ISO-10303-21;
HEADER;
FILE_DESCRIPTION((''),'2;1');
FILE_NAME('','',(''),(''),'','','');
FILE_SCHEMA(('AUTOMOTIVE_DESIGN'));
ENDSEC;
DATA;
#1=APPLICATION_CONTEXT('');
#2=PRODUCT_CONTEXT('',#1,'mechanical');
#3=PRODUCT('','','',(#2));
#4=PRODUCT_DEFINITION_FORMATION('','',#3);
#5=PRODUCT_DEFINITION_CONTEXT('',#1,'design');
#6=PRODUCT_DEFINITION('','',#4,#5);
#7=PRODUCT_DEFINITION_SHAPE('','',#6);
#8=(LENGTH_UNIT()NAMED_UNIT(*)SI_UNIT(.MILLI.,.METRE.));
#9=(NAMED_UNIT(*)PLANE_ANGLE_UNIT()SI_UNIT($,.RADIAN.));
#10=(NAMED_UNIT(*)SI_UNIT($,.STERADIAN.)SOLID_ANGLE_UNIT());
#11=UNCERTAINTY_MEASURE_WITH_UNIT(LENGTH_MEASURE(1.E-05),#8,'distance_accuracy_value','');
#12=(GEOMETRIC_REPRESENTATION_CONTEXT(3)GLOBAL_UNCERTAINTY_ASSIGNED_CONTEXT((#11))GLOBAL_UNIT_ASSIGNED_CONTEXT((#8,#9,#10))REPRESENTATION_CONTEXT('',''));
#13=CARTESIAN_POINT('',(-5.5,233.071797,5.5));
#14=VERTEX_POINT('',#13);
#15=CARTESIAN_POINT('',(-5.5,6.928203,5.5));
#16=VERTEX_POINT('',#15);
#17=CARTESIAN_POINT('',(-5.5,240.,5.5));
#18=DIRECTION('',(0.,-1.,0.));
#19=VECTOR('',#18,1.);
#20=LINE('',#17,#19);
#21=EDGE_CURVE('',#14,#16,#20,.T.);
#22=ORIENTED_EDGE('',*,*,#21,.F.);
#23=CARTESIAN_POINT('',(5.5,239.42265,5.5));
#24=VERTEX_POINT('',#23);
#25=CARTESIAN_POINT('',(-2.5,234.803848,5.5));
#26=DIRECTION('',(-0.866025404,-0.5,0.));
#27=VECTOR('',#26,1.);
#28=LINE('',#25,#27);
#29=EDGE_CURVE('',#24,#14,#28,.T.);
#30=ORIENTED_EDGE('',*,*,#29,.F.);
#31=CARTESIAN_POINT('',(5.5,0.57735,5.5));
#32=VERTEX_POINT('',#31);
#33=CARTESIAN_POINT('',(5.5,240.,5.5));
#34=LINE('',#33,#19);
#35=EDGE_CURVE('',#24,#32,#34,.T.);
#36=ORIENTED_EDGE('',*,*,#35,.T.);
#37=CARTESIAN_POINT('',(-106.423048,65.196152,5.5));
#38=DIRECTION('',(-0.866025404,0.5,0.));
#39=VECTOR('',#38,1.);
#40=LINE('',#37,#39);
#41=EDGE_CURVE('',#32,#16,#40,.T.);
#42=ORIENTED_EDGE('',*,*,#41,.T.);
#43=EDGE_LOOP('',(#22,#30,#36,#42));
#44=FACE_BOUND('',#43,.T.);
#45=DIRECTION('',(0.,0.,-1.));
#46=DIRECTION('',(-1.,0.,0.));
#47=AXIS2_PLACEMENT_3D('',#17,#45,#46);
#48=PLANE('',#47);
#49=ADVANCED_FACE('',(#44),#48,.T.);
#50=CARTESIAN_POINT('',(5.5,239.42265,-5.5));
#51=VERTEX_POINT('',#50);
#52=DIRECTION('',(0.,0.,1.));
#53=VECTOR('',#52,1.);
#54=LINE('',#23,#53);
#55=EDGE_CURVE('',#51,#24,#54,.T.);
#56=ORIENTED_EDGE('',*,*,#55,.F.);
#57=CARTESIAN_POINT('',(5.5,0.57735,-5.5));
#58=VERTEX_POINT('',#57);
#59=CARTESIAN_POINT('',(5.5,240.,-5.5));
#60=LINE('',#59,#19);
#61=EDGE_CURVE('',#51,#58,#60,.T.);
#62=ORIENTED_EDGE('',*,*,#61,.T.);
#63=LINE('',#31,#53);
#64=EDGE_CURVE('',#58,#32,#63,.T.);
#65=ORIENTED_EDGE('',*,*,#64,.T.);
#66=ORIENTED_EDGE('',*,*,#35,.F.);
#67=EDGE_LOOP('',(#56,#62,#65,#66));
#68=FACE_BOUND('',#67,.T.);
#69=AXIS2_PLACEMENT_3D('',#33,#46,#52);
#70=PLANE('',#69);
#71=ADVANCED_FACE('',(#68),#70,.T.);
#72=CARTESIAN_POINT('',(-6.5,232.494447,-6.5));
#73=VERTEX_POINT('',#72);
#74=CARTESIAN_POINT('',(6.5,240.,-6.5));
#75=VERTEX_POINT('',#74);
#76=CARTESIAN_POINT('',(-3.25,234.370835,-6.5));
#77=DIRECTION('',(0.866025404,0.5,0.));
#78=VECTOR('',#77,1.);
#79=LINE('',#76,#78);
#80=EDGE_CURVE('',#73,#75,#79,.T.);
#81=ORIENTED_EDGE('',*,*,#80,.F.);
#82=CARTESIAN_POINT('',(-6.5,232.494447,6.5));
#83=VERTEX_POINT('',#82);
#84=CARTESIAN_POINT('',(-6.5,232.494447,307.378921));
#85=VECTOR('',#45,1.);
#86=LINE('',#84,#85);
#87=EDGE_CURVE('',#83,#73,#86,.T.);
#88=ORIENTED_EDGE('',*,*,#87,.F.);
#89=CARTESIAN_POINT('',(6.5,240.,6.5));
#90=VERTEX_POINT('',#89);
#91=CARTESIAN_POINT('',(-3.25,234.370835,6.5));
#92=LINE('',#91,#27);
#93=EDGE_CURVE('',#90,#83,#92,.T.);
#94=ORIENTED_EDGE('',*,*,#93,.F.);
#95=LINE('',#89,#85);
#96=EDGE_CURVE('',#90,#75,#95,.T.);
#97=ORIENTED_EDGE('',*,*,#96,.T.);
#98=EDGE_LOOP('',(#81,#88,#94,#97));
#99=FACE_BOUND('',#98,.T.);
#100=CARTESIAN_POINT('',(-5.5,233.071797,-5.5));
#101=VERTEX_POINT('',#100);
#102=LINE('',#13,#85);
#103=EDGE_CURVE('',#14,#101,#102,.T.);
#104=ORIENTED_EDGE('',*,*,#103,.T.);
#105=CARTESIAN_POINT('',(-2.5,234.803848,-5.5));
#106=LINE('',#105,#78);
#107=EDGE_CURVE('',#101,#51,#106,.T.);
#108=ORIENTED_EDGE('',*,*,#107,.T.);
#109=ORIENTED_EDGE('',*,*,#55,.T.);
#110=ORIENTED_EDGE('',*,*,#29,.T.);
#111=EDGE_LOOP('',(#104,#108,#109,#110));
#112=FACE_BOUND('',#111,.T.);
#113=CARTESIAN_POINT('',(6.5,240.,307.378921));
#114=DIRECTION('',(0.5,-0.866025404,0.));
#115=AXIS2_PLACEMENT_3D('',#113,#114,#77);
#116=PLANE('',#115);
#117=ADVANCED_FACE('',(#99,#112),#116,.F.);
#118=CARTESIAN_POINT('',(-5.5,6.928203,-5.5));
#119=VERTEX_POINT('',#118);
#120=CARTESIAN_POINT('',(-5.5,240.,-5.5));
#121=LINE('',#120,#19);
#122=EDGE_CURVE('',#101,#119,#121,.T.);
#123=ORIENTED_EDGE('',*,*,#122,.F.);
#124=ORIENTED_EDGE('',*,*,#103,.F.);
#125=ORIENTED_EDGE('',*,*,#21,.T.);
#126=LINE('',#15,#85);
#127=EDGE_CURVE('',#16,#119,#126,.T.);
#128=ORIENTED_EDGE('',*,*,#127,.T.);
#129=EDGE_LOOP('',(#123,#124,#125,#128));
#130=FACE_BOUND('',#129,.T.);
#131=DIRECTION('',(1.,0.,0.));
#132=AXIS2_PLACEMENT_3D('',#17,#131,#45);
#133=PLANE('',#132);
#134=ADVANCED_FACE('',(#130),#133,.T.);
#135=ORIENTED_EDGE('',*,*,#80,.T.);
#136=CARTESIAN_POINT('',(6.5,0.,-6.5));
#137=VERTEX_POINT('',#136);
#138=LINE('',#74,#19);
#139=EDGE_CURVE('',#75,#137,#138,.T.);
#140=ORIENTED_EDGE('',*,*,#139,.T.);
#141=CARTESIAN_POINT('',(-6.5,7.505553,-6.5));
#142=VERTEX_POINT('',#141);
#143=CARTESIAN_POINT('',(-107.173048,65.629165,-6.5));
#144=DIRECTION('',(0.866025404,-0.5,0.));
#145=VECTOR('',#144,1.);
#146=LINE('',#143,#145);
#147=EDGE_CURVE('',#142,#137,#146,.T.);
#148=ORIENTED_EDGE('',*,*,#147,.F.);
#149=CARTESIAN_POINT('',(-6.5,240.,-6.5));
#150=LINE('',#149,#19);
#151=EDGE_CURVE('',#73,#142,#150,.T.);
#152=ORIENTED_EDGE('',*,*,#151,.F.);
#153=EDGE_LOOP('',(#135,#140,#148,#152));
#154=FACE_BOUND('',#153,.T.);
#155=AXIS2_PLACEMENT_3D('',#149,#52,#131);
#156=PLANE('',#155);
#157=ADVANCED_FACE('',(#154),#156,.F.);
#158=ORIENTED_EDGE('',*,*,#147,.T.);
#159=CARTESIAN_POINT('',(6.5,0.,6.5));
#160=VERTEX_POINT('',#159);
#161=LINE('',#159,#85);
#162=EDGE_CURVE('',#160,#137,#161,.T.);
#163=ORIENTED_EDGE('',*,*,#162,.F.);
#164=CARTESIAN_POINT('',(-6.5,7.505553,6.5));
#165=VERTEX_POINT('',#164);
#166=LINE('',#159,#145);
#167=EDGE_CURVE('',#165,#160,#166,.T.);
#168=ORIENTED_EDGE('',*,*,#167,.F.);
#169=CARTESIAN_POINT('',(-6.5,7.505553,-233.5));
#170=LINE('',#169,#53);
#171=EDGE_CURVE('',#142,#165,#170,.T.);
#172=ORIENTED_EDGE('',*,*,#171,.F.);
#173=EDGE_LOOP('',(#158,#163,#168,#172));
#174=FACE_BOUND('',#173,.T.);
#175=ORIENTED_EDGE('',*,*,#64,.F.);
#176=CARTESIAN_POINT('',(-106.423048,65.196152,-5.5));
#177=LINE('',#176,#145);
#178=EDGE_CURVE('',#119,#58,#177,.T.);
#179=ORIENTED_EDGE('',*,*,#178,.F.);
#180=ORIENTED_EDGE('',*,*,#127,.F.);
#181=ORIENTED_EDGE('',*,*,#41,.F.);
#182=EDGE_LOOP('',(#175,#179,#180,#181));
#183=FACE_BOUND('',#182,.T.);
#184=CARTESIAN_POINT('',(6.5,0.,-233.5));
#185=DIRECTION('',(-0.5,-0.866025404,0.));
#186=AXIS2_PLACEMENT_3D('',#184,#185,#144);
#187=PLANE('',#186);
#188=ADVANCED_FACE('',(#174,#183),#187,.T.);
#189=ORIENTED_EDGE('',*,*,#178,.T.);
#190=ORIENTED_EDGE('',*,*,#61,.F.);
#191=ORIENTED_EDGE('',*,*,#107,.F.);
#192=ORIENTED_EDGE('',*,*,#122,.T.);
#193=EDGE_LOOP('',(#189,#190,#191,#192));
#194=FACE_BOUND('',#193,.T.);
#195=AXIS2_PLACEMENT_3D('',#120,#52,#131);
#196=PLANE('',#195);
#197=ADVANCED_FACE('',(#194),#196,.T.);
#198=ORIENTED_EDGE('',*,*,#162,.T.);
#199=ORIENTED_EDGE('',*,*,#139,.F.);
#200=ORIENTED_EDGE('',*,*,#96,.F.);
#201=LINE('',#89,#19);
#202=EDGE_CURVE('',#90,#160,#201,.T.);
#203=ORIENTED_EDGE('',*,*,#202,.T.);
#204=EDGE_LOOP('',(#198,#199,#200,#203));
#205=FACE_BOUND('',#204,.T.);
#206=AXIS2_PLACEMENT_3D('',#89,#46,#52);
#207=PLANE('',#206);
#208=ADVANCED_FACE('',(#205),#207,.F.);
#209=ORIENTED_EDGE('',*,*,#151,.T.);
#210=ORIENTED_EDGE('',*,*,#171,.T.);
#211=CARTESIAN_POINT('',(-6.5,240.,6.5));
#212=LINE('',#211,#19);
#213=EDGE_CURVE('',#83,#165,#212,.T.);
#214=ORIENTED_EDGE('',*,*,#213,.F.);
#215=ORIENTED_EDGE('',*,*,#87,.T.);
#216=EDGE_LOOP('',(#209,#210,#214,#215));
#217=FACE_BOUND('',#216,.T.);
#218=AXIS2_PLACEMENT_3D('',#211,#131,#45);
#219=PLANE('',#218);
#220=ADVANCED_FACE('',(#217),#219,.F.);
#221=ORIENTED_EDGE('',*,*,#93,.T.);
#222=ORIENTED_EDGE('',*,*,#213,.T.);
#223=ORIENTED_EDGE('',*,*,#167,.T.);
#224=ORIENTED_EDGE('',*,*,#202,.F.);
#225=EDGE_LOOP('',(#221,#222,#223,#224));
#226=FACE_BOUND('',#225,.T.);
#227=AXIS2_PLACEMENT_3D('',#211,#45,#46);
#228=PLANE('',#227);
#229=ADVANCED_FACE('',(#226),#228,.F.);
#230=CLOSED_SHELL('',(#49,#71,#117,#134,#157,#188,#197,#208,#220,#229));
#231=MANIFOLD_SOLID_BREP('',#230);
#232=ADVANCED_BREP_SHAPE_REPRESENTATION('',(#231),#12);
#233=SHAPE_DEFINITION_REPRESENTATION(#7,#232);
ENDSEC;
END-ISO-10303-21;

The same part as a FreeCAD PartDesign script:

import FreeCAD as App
import Part
import Sketcher
Q = App.Units.Quantity

doc = App.newDocument("Part")
body = doc.addObject("PartDesign::Body", "Body")

# Sketch on XZ plane
sketch1 = doc.addObject("Sketcher::SketchObject", "Sketch")
body.addObject(sketch1)
sketch1.AttachmentSupport = (doc.XZ_Plane, [""])
sketch1.MapMode = "FlatFace"
sketch1.addGeometry([
    Part.LineSegment(App.Vector(-6, -6, 0), App.Vector(-6, 6, 0)),  # 0
    Part.LineSegment(App.Vector(-6, 6, 0), App.Vector(6, 6, 0)),  # 1
    Part.LineSegment(App.Vector(6, 6, 0), App.Vector(6, -6, 0)),  # 2
    Part.LineSegment(App.Vector(6, -6, 0), App.Vector(-6, -6, 0)),  # 3
    Part.LineSegment(App.Vector(6, 6, 0), App.Vector(-6, 6, 0)),  # 4
    Part.LineSegment(App.Vector(-6, 6, 0), App.Vector(-6, -6, 0)),  # 5
    Part.LineSegment(App.Vector(-6, -6, 0), App.Vector(6, -6, 0)),  # 6
    Part.LineSegment(App.Vector(6, -6, 0), App.Vector(6, 6, 0)),  # 7
], False)
sketch1.addConstraint([
    Sketcher.Constraint("Coincident", 0, 2, 1, 1),
    Sketcher.Constraint("Coincident", 1, 2, 2, 1),
    Sketcher.Constraint("Coincident", 2, 2, 3, 1),
    Sketcher.Constraint("Coincident", 3, 2, 0, 1),
    Sketcher.Constraint("Coincident", 4, 2, 5, 1),
    Sketcher.Constraint("Coincident", 5, 2, 6, 1),
    Sketcher.Constraint("Coincident", 6, 2, 7, 1),
    Sketcher.Constraint("Coincident", 7, 2, 4, 1),
    Sketcher.Constraint("Vertical", 0),
    Sketcher.Constraint("Horizontal", 1),
    Sketcher.Constraint("Vertical", 2),
    Sketcher.Constraint("Horizontal", 3),
    Sketcher.Constraint("Horizontal", 4),
    Sketcher.Constraint("Vertical", 5),
    Sketcher.Constraint("Horizontal", 6),
    Sketcher.Constraint("Vertical", 7),
    Sketcher.Constraint("Symmetric", 0, 2, 2, 2, -1, 1),
    Sketcher.Constraint("Symmetric", 4, 2, 6, 2, -1, 1),
    Sketcher.Constraint("Equal", 3, 0),
    Sketcher.Constraint("Equal", 6, 5),
    Sketcher.Constraint("DistanceX", 1, 1, 1, 2, Q("13 mm")),
    Sketcher.Constraint("DistanceX", 4, 2, 4, 1, Q("11 mm")),
])
pad1 = doc.addObject("PartDesign::Pad", "Pad")
body.addObject(pad1)
pad1.Profile = sketch1
pad1.Length = 240
pad1.Reversed = True

# Sketch on XY plane
sketch2 = doc.addObject("Sketcher::SketchObject", "Sketch001")
body.addObject(sketch2)
sketch2.AttachmentSupport = (doc.XY_Plane, [""])
sketch2.MapMode = "FlatFace"
sketch2.AttachmentOffset = App.Placement(App.Vector(0, 0, 6.5), App.Rotation())
sketch2.addGeometry([
    Part.LineSegment(App.Vector(6, 240, 0), App.Vector(431, 485, 0)),  # 0
    Part.LineSegment(App.Vector(431, 485, 0), App.Vector(-59, 1335, 0)),  # 1
    Part.LineSegment(App.Vector(-59, 1335, 0), App.Vector(-922, 837, 0)),  # 2
    Part.LineSegment(App.Vector(-922, 837, 0), App.Vector(-431, -13, 0)),  # 3
    Part.LineSegment(App.Vector(-431, -13, 0), App.Vector(-6, 232, 0)),  # 4
    Part.LineSegment(App.Vector(-6, 232, 0), App.Vector(6, 240, 0)),  # 5
], False)
sketch2.addConstraint([
    Sketcher.Constraint("Coincident", 0, 2, 1, 1),
    Sketcher.Constraint("Coincident", 1, 2, 2, 1),
    Sketcher.Constraint("Coincident", 2, 2, 3, 1),
    Sketcher.Constraint("Coincident", 3, 2, 4, 1),
    Sketcher.Constraint("Coincident", 4, 2, 5, 1),
    Sketcher.Constraint("Coincident", 5, 2, 0, 1),
    Sketcher.Constraint("Perpendicular", 0, 1),
    Sketcher.Constraint("Perpendicular", 1, 2),
    Sketcher.Constraint("Perpendicular", 2, 3),
    Sketcher.Constraint("Perpendicular", 3, 4),
    Sketcher.Constraint("Parallel", 4, 5),
    Sketcher.Constraint("Equal", 0, 4),
    Sketcher.Constraint("Angle", 0, Q("30 deg")),
    Sketcher.Constraint("DistanceY", -1, 1, 5, 2, Q("240 mm")),
    Sketcher.Constraint("DistanceX", 4, 2, 5, 2, Q("13 mm")),
    Sketcher.Constraint("DistanceX", 4, 2, -1, 1, Q("6.5 mm")),
    Sketcher.Constraint("Distance", 1, Q("981.407302 mm")),
    Sketcher.Constraint("Distance", 0, Q("490.703651 mm")),
])
pocket1 = doc.addObject("PartDesign::Pocket", "Pocket")
body.addObject(pocket1)
pocket1.Profile = sketch2
pocket1.Type = "ThroughAll"
pocket1.Midplane = True

# Sketch on XY plane
sketch3 = doc.addObject("Sketcher::SketchObject", "Sketch002")
body.addObject(sketch3)
sketch3.AttachmentSupport = (doc.XY_Plane, [""])
sketch3.MapMode = "FlatFace"
sketch3.AttachmentOffset = App.Placement(App.Vector(0, 0, 6.5), App.Rotation())
sketch3.addGeometry([
    Part.LineSegment(App.Vector(-32, 265, 0), App.Vector(-32, -25, 0)),  # 0
    Part.LineSegment(App.Vector(-32, -25, 0), App.Vector(32, -25, 0)),  # 1
    Part.LineSegment(App.Vector(32, -25, 0), App.Vector(32, 265, 0)),  # 2
    Part.LineSegment(App.Vector(32, 265, 0), App.Vector(-32, 265, 0)),  # 3
    Part.LineSegment(App.Vector(6, 240, 0), App.Vector(6, 0, 0)),  # 4
    Part.LineSegment(App.Vector(6, 0, 0), App.Vector(-6, 8, 0)),  # 5
    Part.LineSegment(App.Vector(-6, 8, 0), App.Vector(-6, 232, 0)),  # 6
    Part.LineSegment(App.Vector(-6, 232, 0), App.Vector(6, 240, 0)),  # 7
], False)
sketch3.addConstraint([
    Sketcher.Constraint("Coincident", 0, 2, 1, 1),
    Sketcher.Constraint("Coincident", 1, 2, 2, 1),
    Sketcher.Constraint("Coincident", 2, 2, 3, 1),
    Sketcher.Constraint("Coincident", 3, 2, 0, 1),
    Sketcher.Constraint("Coincident", 4, 2, 5, 1),
    Sketcher.Constraint("Coincident", 5, 2, 6, 1),
    Sketcher.Constraint("Coincident", 6, 2, 7, 1),
    Sketcher.Constraint("Coincident", 7, 2, 4, 1),
    Sketcher.Constraint("Vertical", 0),
    Sketcher.Constraint("Horizontal", 1),
    Sketcher.Constraint("Vertical", 2),
    Sketcher.Constraint("Horizontal", 3),
    Sketcher.Constraint("Vertical", 4),
    Sketcher.Constraint("Vertical", 6),
    Sketcher.Constraint("PointOnObject", 4, 2, -1),
    Sketcher.Constraint("Equal", 5, 7),
    Sketcher.Constraint("DistanceY", 4, 2, 4, 1, Q("240 mm")),
    Sketcher.Constraint("Angle", 5, Q("150 deg")),
    Sketcher.Constraint("DistanceX", 5, 2, 4, 2, Q("13 mm")),
    Sketcher.Constraint("DistanceX", 1, 1, 1, 2, Q("63.14 mm")),
    Sketcher.Constraint("DistanceY", 0, 2, 0, 1, Q("290.14 mm")),
    Sketcher.Constraint("DistanceX", -1, 1, 4, 2, Q("6.5 mm")),
    Sketcher.Constraint("DistanceX", 0, 2, -1, 1, Q("31.57 mm")),
    Sketcher.Constraint("DistanceY", 0, 2, -1, 1, Q("25.07 mm")),
])
pocket2 = doc.addObject("PartDesign::Pocket", "Pocket001")
body.addObject(pocket2)
pocket2.Profile = sketch3
pocket2.Length = 240

doc.recompute()
